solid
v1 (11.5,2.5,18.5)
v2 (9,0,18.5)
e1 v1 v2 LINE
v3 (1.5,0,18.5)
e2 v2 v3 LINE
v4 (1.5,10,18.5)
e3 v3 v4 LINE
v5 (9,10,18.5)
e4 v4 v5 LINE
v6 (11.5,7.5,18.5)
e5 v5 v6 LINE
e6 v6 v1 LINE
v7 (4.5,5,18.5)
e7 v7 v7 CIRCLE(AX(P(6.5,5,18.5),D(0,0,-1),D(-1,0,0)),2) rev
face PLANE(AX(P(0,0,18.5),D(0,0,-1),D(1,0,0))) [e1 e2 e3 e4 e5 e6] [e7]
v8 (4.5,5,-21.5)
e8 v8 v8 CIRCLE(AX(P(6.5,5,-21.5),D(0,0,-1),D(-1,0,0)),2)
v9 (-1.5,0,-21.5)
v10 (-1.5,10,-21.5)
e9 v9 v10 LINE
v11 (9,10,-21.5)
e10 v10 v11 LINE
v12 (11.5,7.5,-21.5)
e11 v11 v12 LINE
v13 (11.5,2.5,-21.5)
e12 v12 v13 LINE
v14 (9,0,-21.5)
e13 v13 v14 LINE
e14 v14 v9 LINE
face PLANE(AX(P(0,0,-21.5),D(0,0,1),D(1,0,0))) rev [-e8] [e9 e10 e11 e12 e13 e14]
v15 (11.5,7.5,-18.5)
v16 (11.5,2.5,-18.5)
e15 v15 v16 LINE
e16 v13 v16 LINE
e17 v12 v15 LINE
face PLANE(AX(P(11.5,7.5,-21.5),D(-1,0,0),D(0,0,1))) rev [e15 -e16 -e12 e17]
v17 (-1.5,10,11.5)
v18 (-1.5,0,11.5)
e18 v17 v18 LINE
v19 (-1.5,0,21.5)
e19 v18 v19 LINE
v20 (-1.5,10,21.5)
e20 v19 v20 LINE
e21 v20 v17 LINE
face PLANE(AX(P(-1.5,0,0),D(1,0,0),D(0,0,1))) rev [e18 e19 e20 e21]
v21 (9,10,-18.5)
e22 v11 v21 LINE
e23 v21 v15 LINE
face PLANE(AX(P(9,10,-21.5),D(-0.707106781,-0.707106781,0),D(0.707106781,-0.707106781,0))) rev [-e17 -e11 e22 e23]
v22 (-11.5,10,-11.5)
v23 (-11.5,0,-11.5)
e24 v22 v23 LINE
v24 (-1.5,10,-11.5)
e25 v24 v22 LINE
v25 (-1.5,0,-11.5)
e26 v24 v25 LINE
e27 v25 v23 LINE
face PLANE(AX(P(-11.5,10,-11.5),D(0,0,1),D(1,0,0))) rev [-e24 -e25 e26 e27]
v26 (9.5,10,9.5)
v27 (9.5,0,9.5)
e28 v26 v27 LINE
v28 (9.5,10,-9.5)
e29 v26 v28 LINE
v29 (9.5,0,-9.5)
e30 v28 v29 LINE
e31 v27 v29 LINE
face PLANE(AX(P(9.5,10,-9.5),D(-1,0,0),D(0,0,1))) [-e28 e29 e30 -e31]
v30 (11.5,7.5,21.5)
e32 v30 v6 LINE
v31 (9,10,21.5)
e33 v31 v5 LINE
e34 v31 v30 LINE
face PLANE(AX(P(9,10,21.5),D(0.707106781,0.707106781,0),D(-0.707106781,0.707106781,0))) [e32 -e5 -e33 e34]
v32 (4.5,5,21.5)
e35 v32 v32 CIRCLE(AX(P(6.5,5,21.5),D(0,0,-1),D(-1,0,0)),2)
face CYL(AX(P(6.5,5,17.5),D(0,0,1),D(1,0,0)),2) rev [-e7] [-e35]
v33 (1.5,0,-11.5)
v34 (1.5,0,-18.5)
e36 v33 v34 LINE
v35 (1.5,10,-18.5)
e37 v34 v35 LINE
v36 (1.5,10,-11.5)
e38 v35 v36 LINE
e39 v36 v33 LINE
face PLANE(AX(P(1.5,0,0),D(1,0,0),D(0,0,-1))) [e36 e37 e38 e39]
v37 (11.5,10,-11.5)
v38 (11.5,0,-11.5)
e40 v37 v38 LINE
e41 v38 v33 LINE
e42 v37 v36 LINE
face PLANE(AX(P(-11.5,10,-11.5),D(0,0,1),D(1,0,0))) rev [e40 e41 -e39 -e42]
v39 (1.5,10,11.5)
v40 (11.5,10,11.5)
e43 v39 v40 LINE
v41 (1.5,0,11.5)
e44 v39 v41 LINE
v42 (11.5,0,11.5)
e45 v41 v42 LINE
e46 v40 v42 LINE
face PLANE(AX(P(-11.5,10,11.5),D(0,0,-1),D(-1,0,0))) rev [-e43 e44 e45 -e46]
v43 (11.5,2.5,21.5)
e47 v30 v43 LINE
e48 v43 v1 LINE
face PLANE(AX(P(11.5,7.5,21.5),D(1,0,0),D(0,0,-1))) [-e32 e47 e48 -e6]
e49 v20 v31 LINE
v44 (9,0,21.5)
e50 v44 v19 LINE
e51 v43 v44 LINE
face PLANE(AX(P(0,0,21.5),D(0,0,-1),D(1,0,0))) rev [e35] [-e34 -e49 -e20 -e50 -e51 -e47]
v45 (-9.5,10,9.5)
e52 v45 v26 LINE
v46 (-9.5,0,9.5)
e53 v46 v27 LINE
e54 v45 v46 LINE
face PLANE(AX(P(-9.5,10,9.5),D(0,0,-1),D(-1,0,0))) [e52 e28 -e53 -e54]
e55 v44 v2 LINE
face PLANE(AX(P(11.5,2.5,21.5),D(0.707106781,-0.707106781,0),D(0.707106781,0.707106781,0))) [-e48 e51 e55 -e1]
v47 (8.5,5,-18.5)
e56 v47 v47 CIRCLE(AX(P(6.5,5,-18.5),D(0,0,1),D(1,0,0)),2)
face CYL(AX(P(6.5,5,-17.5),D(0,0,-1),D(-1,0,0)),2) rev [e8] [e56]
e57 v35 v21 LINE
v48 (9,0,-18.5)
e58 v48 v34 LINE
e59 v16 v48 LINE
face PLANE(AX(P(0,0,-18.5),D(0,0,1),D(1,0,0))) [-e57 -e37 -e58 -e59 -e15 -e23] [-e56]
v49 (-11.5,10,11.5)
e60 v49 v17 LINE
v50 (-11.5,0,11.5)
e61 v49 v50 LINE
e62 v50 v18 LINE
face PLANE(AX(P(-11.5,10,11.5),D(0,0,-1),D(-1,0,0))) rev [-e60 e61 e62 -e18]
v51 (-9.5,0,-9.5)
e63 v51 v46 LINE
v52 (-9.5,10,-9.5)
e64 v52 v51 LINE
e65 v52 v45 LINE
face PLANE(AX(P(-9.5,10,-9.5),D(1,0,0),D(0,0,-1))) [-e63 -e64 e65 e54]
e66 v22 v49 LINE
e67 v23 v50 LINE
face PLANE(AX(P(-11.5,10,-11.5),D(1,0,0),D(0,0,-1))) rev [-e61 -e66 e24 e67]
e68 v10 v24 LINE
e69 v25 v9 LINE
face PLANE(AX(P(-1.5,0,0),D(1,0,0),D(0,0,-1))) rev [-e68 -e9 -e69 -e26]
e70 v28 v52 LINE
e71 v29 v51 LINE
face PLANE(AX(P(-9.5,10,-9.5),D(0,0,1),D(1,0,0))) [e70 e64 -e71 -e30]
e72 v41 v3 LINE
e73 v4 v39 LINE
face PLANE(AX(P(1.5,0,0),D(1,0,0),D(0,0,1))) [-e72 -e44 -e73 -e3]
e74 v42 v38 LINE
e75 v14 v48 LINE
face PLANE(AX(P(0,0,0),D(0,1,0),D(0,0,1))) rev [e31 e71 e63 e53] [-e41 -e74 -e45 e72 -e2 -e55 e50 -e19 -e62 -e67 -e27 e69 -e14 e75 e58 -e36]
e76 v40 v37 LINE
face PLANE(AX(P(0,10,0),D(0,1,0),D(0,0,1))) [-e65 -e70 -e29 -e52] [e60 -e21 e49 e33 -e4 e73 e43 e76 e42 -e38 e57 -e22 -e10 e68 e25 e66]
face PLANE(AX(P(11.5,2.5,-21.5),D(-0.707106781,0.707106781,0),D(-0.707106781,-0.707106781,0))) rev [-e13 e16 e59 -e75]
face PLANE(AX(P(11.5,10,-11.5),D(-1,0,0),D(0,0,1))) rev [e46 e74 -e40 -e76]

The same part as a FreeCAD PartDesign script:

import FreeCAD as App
import Part
import Sketcher

V = App.Vector
Q = App.Units.Quantity

doc = App.newDocument("Part")
body = doc.addObject("PartDesign::Body", "Body")

sketch1 = body.newObject("Sketcher::SketchObject", "Sketch")
sketch1.AttachmentSupport = (doc.getObject("XZ_Plane"), [""])
sketch1.MapMode = "FlatFace"
sketch1.addGeometry([
    Part.LineSegment(V(-12, -12, 0), V(-12, 12, 0)),
    Part.LineSegment(V(-12, 12, 0), V(12, 12, 0)),
    Part.LineSegment(V(12, 12, 0), V(12, -12, 0)),
    Part.LineSegment(V(12, -12, 0), V(-12, -12, 0)),
    Part.LineSegment(V(10, 10, 0), V(-10, 10, 0)),
    Part.LineSegment(V(-10, 10, 0), V(-10, -10, 0)),
    Part.LineSegment(V(-10, -10, 0), V(10, -10, 0)),
    Part.LineSegment(V(10, -10, 0), V(10, 10, 0)),
], False)
sketch1.addConstraint([
    Sketcher.Constraint("Coincident", 0, 2, 1, 1),
    Sketcher.Constraint("Coincident", 1, 2, 2, 1),
    Sketcher.Constraint("Coincident", 2, 2, 3, 1),
    Sketcher.Constraint("Coincident", 3, 2, 0, 1),
    Sketcher.Constraint("Coincident", 4, 2, 5, 1),
    Sketcher.Constraint("Coincident", 5, 2, 6, 1),
    Sketcher.Constraint("Coincident", 6, 2, 7, 1),
    Sketcher.Constraint("Coincident", 7, 2, 4, 1),
    Sketcher.Constraint("Vertical", 0),
    Sketcher.Constraint("Horizontal", 1),
    Sketcher.Constraint("Vertical", 2),
    Sketcher.Constraint("Horizontal", 3),
    Sketcher.Constraint("Horizontal", 4),
    Sketcher.Constraint("Vertical", 5),
    Sketcher.Constraint("Horizontal", 6),
    Sketcher.Constraint("Vertical", 7),
    Sketcher.Constraint("Symmetric", 0, 2, 2, 2, -1, 1),
    Sketcher.Constraint("Symmetric", 4, 2, 6, 2, -1, 1),
    Sketcher.Constraint("Equal", 3, 0),
    Sketcher.Constraint("Equal", 6, 5),
    Sketcher.Constraint("DistanceX", 1, 1, 1, 2, Q("23 mm")),
    Sketcher.Constraint("DistanceX", 4, 2, 4, 1, Q("19 mm")),
])
pad1 = body.newObject("PartDesign::Pad", "Pad")
pad1.Profile = sketch1
pad1.Length = 10
pad1.Reversed = True

sketch2 = body.newObject("Sketcher::SketchObject", "Sketch001")
sketch2.AttachmentSupport = (doc.getObject("YZ_Plane"), [""])
sketch2.MapMode = "FlatFace"
sketch2.addGeometry([
    Part.LineSegment(V(10, -12, 0), V(0, -12, 0)),
    Part.LineSegment(V(0, -12, 0), V(0, -18, 0)),
    Part.LineSegment(V(0, -18, 0), V(10, -18, 0)),
    Part.LineSegment(V(10, -18, 0), V(10, -12, 0)),
], False)
sketch2.addConstraint([
    Sketcher.Constraint("Coincident", 0, 2, 1, 1),
    Sketcher.Constraint("Coincident", 1, 2, 2, 1),
    Sketcher.Constraint("Coincident", 2, 2, 3, 1),
    Sketcher.Constraint("Coincident", 3, 2, 0, 1),
    Sketcher.Constraint("Horizontal", 0),
    Sketcher.Constraint("Vertical", 1),
    Sketcher.Constraint("Horizontal", 2),
    Sketcher.Constraint("Vertical", 3),
    Sketcher.Constraint("PointOnObject", 0, 2, -2),
    Sketcher.Constraint("DistanceX", 0, 2, 0, 1, Q("10 mm")),
    Sketcher.Constraint("DistanceY", 1, 2, 1, 1, Q("7 mm")),
    Sketcher.Constraint("DistanceY", 0, 2, -1, 1, Q("11.5 mm")),
])
pad2 = body.newObject("PartDesign::Pad", "Pad001")
pad2.Profile = sketch2
pad2.Length = 3
pad2.Midplane = True

sketch3 = body.newObject("Sketcher::SketchObject", "Sketch002")
sketch3.AttachmentSupport = (doc.getObject("XY_Plane"), [""])
sketch3.MapMode = "FlatFace"
sketch3.AttachmentOffset = App.Placement(V(0, 0, -18.5), App.Rotation())
sketch3.addGeometry([
    Part.LineSegment(V(9, 10, 0), V(11.5, 7.5, 0)),
    Part.LineSegment(V(11.5, 7.5, 0), V(11.5, 2.5, 0)),
    Part.LineSegment(V(11.5, 2.5, 0), V(9, 0, 0)),
    Part.LineSegment(V(9, 0, 0), V(-1.5, 0, 0)),
    Part.LineSegment(V(-1.5, 0, 0), V(-1.5, 10, 0)),
    Part.LineSegment(V(-1.5, 10, 0), V(9, 10, 0)),
], False)
sketch3.addConstraint([
    Sketcher.Constraint("Coincident", 0, 2, 1, 1),
    Sketcher.Constraint("Coincident", 1, 2, 2, 1),
    Sketcher.Constraint("Coincident", 2, 2, 3, 1),
    Sketcher.Constraint("Coincident", 3, 2, 4, 1),
    Sketcher.Constraint("Coincident", 4, 2, 5, 1),
    Sketcher.Constraint("Coincident", 5, 2, 0, 1),
    Sketcher.Constraint("Vertical", 1),
    Sketcher.Constraint("Horizontal", 3),
    Sketcher.Constraint("Vertical", 4),
    Sketcher.Constraint("Horizontal", 5),
    Sketcher.Constraint("PointOnObject", 2, 2, -1),
    Sketcher.Constraint("Perpendicular", 0, 2),
    Sketcher.Constraint("Vertical", 2, 2, 5, 2),
    Sketcher.Constraint("Equal", 0, 2),
    Sketcher.Constraint("DistanceY", 1, 2, 1, 1, Q("5 mm")),
    Sketcher.Constraint("DistanceY", 4, 1, 4, 2, Q("10 mm")),
    Sketcher.Constraint("DistanceX", 3, 2, 3, 1, Q("10.5 mm")),
    Sketcher.Constraint("DistanceX", -1, 1, 2, 2, Q("9 mm")),
])
pad3 = body.newObject("PartDesign::Pad", "Pad002")
pad3.Profile = sketch3
pad3.Length = 3
pad3.Reversed = True

sketch4 = body.newObject("Sketcher::SketchObject", "Sketch003")
sketch4.AttachmentSupport = (doc.getObject("XY_Plane"), [""])
sketch4.MapMode = "FlatFace"
sketch4.AttachmentOffset = App.Placement(V(0, 0, -21.5), App.Rotation())
sketch4.addGeometry(Part.Circle(V(6.5, 5, 0), V(0, 0, 1), 2), False)
sketch4.addConstraint([
    Sketcher.Constraint("Diameter", 0, Q("4 mm")),
    Sketcher.Constraint("DistanceY", -1, 1, 0, 3, Q("5 mm")),
    Sketcher.Constraint("DistanceX", -1, 1, 0, 3, Q("6.5 mm")),
])
pocket1 = body.newObject("PartDesign::Pocket", "Pocket")
pocket1.Profile = sketch4
pocket1.Length = 4
pocket1.Reversed = True
doc.recompute()

mirrored = body.newObject("PartDesign::Mirrored", "Mirrored")
mirrored.Originals = [pad2, pad3, pocket1]
mirrored.MirrorPlane = (doc.getObject("XY_Plane"), [""])
body.Tip = mirrored

doc.recompute()
